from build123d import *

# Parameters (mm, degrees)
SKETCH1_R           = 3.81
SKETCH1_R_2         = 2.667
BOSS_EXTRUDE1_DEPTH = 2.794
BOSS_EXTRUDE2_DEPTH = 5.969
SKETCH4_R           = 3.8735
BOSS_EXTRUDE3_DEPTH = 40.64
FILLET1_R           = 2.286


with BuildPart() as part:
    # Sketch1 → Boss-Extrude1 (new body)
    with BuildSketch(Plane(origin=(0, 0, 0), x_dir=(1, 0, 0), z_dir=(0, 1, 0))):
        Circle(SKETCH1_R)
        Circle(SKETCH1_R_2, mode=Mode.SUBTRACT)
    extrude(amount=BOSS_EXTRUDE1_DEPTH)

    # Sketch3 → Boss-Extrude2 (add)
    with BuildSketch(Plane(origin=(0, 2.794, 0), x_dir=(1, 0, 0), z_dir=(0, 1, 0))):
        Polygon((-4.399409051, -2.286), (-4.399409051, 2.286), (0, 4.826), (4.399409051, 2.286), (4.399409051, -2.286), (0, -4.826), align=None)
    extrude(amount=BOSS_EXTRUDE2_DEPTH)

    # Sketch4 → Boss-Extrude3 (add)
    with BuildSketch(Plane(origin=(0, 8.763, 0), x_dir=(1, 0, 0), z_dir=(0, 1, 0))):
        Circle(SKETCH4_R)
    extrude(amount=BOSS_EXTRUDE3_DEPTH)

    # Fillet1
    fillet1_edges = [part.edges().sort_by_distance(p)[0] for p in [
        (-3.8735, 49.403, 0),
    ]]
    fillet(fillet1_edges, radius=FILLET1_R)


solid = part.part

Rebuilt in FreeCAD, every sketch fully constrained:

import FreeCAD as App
import Part
import Sketcher

V = App.Vector
Q = App.Units.Quantity


def edges_at(feature, points):
    """Names of the edges that pass closest to the given points."""
    edges = feature.Shape.Edges
    near = lambda p: min(range(len(edges)), key=lambda i: edges[i].distToShape(Part.Vertex(*p))[0])
    return sorted({f"Edge{near(p) + 1}" for p in points})


def add_polygon(sketch, points):
    """Adds a closed chain of lines whose ends are joined by coincident constraints."""
    first, n = sketch.GeometryCount, len(points)
    for a, b in zip(points, points[1:] + points[:1]):
        sketch.addGeometry(Part.LineSegment(App.Vector(*a, 0), App.Vector(*b, 0)), False)
    for i in range(n):
        sketch.addConstraint(Sketcher.Constraint("Coincident", first + i, 2, first + (i + 1) % n, 1))

doc = App.newDocument("Part")
body = doc.addObject("PartDesign::Body", "Body")

# Sketch on XZ plane
sketch1 = doc.addObject("Sketcher::SketchObject", "Sketch")
body.addObject(sketch1)
sketch1.AttachmentSupport = (doc.XZ_Plane, [""])
sketch1.MapMode = "FlatFace"
sketch1.addGeometry([
    Part.Circle(V(0, 0, 0), V(0, 0, 1), 3.8),
    Part.Circle(V(0, 0, 0), V(0, 0, 1), 2.7),
], False)
sketch1.addConstraint([
    Sketcher.Constraint("Coincident", 0, 3, -1, 1),
    Sketcher.Constraint("Coincident", 1, 3, -1, 1),
    Sketcher.Constraint("Diameter", 0, Q("0.3 in")),
    Sketcher.Constraint("Diameter", 1, Q("0.21 in")),
])
pad1 = doc.addObject("PartDesign::Pad", "Pad")
body.addObject(pad1)
pad1.Profile = sketch1
pad1.Length = Q("0.11 in")
pad1.Reversed = True

# Sketch on XZ plane
sketch2 = doc.addObject("Sketcher::SketchObject", "Sketch001")
body.addObject(sketch2)
sketch2.AttachmentSupport = (doc.XZ_Plane, [""])
sketch2.MapMode = "FlatFace"
sketch2.AttachmentOffset = App.Placement(V(0, 0, -0.11 * 25.4), App.Rotation())
add_polygon(sketch2, [(-4.4, -2.3), (-4.4, 2.3), (0, 4.8), (4.4, 2.3), (4.4, -2.3), (0, -4.8)])  # lines 0-5
sketch2.addConstraint([
    Sketcher.Constraint("Vertical", 0),
    Sketcher.Constraint("Vertical", 3),
    Sketcher.Constraint("Symmetric", 0, 2, 3, 2, -1, 1),
    Sketcher.Constraint("Symmetric", 1, 2, 4, 2, -1, 1),
    Sketcher.Constraint("PointOnObject", 1, 2, -2),
    Sketcher.Constraint("Parallel", 2, 5),
    Sketcher.Constraint("Horizontal", 0, 2, 2, 2),
    Sketcher.Constraint("Angle", 1, Q("30 deg")),
    Sketcher.Constraint("Distance", 1, Q("0.2 in")),
    Sketcher.Constraint("DistanceY", 0, 1, 0, 2, Q("0.18 in")),
])
pad2 = doc.addObject("PartDesign::Pad", "Pad001")
body.addObject(pad2)
pad2.Profile = sketch2
pad2.Length = Q("0.235 in")
pad2.Reversed = True

# Sketch on XZ plane
sketch3 = doc.addObject("Sketcher::SketchObject", "Sketch002")
body.addObject(sketch3)
sketch3.AttachmentSupport = (doc.XZ_Plane, [""])
sketch3.MapMode = "FlatFace"
sketch3.AttachmentOffset = App.Placement(V(0, 0, -0.345 * 25.4), App.Rotation())
sketch3.addGeometry(Part.Circle(V(0, 0, 0), V(0, 0, 1), 3.9), False)
sketch3.addConstraint([
    Sketcher.Constraint("Coincident", 0, 3, -1, 1),
    Sketcher.Constraint("Diameter", 0, Q("0.305 in")),
])
pad3 = doc.addObject("PartDesign::Pad", "Pad002")
body.addObject(pad3)
pad3.Profile = sketch3
pad3.Length = Q("1.6 in")
pad3.Reversed = True
doc.recompute()

fillet = doc.addObject("PartDesign::Fillet", "Fillet")
body.addObject(fillet)
fillet.Base = (pad3, edges_at(pad3, [(-3.873, 49.403, 0)]))
fillet.Radius = Q("0.09 in")

doc.recompute()
